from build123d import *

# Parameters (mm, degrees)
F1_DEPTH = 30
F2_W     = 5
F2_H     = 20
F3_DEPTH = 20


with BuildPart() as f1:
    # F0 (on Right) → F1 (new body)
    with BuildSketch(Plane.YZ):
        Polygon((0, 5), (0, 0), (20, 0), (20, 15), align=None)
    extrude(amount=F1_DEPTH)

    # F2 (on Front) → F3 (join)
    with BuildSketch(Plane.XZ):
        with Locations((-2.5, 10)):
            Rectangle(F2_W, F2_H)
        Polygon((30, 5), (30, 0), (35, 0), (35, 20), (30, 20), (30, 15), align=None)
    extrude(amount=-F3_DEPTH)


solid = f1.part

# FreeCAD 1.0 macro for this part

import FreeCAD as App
import Part
import Sketcher

V = App.Vector

doc = App.newDocument("Part")
body = doc.addObject("PartDesign::Body", "Body")

sketch1 = body.newObject("Sketcher::SketchObject", "Sketch")
sketch1.AttachmentSupport = (doc.getObject("YZ_Plane"), [""])
sketch1.MapMode = "FlatFace"
sketch1.addGeometry([
    Part.LineSegment(V(0, 5, 0), V(0, 0, 0)),
    Part.LineSegment(V(0, 0, 0), V(20, 0, 0)),
    Part.LineSegment(V(20, 0, 0), V(20, 15, 0)),
    Part.LineSegment(V(20, 15, 0), V(0, 5, 0)),
], False)
sketch1.addConstraint([
    Sketcher.Constraint("Coincident", 0, 2, 1, 1),
    Sketcher.Constraint("Coincident", 1, 2, 2, 1),
    Sketcher.Constraint("Coincident", 2, 2, 3, 1),
    Sketcher.Constraint("Coincident", 3, 2, 0, 1),
    Sketcher.Constraint("Vertical", 0),
    Sketcher.Constraint("Horizontal", 1),
    Sketcher.Constraint("Vertical", 2),
    Sketcher.Constraint("Coincident", 0, 2, -1, 1),
    Sketcher.Constraint("DistanceX", 1, 1, 1, 2, 20.0),
    Sketcher.Constraint("DistanceY", 0, 2, 0, 1, 5.0),
    Sketcher.Constraint("DistanceY", 2, 1, 2, 2, 15.0),
])
pad1 = body.newObject("PartDesign::Pad", "Pad")
pad1.Profile = sketch1
pad1.Length = 30

sketch2 = body.newObject("Sketcher::SketchObject", "Sketch001")
sketch2.AttachmentSupport = (doc.getObject("XZ_Plane"), [""])
sketch2.MapMode = "FlatFace"
sketch2.addGeometry([
    Part.LineSegment(V(-5, 20, 0), V(-5, 0, 0)),
    Part.LineSegment(V(-5, 0, 0), V(0, 0, 0)),
    Part.LineSegment(V(0, 0, 0), V(0, 20, 0)),
    Part.LineSegment(V(0, 20, 0), V(-5, 20, 0)),
    Part.LineSegment(V(30, 0, 0), V(35, 0, 0)),
    Part.LineSegment(V(35, 0, 0), V(35, 20, 0)),
    Part.LineSegment(V(35, 20, 0), V(30, 20, 0)),
    Part.LineSegment(V(30, 20, 0), V(30, 0, 0)),
], False)
sketch2.addConstraint([
    Sketcher.Constraint("Coincident", 0, 2, 1, 1),
    Sketcher.Constraint("Coincident", 1, 2, 2, 1),
    Sketcher.Constraint("Coincident", 2, 2, 3, 1),
    Sketcher.Constraint("Coincident", 3, 2, 0, 1),
    Sketcher.Constraint("Coincident", 4, 2, 5, 1),
    Sketcher.Constraint("Coincident", 5, 2, 6, 1),
    Sketcher.Constraint("Coincident", 6, 2, 7, 1),
    Sketcher.Constraint("Coincident", 7, 2, 4, 1),
    Sketcher.Constraint("Vertical", 0),
    Sketcher.Constraint("Horizontal", 1),
    Sketcher.Constraint("Vertical", 2),
    Sketcher.Constraint("Horizontal", 3),
    Sketcher.Constraint("Horizontal", 4),
    Sketcher.Constraint("Vertical", 5),
    Sketcher.Constraint("Horizontal", 6),
    Sketcher.Constraint("Vertical", 7),
    Sketcher.Constraint("Coincident", 1, 2, -1, 1),
    Sketcher.Constraint("PointOnObject", 4, 2, -1),
    Sketcher.Constraint("Horizontal", 3, 2, 5, 2),
    Sketcher.Constraint("Equal", 3, 4),
    Sketcher.Constraint("DistanceX", 1, 1, 1, 2, 5.0),
    Sketcher.Constraint("DistanceY", 0, 2, 0, 1, 20.0),
    Sketcher.Constraint("DistanceX", -1, 1, 4, 2, 35.0),
])
pad2 = body.newObject("PartDesign::Pad", "Pad001")
pad2.Profile = sketch2
pad2.Length = 20
pad2.Reversed = True

doc.recompute()
